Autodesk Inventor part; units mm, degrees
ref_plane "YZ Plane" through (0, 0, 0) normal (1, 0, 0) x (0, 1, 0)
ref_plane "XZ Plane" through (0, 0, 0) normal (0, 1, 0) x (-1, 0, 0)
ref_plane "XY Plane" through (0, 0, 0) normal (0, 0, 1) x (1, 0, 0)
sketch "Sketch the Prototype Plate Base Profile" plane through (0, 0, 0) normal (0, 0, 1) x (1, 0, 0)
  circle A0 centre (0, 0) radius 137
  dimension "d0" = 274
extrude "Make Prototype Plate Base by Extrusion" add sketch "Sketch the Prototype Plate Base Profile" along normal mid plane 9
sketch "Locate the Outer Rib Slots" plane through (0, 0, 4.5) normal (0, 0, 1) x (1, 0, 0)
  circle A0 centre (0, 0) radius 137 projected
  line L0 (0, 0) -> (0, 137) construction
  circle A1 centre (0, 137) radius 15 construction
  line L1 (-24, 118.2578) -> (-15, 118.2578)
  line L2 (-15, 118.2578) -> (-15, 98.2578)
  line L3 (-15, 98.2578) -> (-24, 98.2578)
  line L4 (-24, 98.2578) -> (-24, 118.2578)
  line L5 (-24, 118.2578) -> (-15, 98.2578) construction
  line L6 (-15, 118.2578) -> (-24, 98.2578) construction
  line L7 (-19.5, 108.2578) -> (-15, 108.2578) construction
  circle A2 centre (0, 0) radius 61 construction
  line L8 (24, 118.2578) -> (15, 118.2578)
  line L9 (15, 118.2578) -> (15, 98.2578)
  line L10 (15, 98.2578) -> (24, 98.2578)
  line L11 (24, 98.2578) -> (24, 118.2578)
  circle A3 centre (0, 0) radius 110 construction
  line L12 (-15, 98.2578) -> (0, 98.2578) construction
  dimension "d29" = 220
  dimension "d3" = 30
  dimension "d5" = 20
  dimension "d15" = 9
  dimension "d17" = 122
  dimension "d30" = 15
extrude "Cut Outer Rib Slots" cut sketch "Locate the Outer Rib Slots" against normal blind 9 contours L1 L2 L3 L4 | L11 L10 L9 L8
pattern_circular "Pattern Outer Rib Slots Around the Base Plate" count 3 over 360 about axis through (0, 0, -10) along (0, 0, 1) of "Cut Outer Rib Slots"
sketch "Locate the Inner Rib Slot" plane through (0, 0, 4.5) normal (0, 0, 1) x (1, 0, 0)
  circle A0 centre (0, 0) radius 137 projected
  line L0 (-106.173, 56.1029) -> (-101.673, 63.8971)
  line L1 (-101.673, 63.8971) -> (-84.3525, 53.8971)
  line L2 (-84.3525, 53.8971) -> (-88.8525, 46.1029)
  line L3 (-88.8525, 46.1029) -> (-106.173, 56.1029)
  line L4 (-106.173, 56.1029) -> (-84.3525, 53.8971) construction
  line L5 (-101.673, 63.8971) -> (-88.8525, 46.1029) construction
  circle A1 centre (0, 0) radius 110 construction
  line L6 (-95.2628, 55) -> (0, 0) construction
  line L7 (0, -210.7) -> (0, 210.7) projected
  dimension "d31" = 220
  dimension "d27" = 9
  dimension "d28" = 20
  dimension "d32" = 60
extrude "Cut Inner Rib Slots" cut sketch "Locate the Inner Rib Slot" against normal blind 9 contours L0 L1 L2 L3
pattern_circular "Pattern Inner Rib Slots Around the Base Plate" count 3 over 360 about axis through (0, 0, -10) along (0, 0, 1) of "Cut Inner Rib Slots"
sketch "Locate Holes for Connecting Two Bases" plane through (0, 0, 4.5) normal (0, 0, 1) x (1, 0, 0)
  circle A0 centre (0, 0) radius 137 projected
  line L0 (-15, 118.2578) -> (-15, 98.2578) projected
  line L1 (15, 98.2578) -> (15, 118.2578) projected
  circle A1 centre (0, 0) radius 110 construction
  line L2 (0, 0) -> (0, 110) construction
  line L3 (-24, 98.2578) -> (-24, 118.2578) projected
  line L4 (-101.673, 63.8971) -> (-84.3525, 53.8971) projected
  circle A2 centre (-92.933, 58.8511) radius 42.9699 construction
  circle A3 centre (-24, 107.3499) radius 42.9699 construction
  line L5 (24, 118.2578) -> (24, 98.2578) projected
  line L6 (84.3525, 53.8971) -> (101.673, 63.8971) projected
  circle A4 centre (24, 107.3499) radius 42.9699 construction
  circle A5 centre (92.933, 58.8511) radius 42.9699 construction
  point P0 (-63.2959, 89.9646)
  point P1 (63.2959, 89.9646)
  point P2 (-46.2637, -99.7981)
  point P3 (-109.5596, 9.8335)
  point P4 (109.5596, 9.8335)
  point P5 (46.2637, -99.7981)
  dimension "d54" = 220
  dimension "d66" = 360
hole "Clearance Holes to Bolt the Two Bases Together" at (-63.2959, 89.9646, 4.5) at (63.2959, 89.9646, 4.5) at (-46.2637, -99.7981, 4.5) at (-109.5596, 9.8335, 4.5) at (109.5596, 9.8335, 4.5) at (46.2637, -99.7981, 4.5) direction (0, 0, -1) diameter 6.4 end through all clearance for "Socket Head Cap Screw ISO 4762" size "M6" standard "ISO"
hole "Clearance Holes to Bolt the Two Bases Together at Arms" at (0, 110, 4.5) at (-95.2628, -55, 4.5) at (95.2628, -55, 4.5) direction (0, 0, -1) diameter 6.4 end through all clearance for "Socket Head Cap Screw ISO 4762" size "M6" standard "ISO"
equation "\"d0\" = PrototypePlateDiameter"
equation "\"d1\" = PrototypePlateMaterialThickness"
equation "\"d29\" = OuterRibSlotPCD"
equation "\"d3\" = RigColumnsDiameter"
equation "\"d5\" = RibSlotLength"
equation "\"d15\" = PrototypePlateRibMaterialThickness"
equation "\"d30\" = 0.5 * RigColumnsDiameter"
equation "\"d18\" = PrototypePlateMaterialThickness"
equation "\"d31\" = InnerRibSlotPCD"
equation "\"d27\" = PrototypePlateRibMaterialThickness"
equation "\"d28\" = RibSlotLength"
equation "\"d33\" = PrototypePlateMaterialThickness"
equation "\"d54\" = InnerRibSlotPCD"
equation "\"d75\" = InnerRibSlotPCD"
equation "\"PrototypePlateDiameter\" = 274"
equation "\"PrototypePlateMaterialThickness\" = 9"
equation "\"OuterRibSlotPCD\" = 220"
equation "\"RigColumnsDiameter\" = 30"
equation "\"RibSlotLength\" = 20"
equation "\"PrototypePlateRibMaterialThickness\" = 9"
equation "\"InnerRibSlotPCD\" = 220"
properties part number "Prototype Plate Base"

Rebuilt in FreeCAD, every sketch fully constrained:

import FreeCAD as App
import Part
import Sketcher
from FreeCAD import Vector
Q = App.Units.Quantity


def add_polygon(sketch, points):
    """Adds a closed chain of lines whose ends are joined by coincident constraints."""
    first, n = sketch.GeometryCount, len(points)
    for a, b in zip(points, points[1:] + points[:1]):
        sketch.addGeometry(Part.LineSegment(App.Vector(*a, 0), App.Vector(*b, 0)), False)
    for i in range(n):
        sketch.addConstraint(Sketcher.Constraint("Coincident", first + i, 2, first + (i + 1) % n, 1))

doc = App.newDocument("Part")
body = doc.addObject("PartDesign::Body", "Body")

sketch1 = body.newObject("Sketcher::SketchObject", "Sketch")
sketch1.AttachmentSupport = (doc.getObject("XY_Plane"), [""])
sketch1.MapMode = "FlatFace"
sketch1.addGeometry(Part.Circle(Vector(0, 0, 0), Vector(0, 0, 1), 137), False)
sketch1.addConstraint(Sketcher.Constraint("Coincident", 0, 3, -1, 1))
sketch1.addConstraint(Sketcher.Constraint("Diameter", 0, 274.0))
pad1 = body.newObject("PartDesign::Pad", "Pad")
pad1.Profile = sketch1
pad1.Length = 9
pad1.Midplane = True

sketch2 = body.newObject("Sketcher::SketchObject", "Sketch001")
sketch2.AttachmentSupport = (doc.getObject("XY_Plane"), [""])
sketch2.MapMode = "FlatFace"
sketch2.AttachmentOffset = App.Placement(Vector(0, 0, 4.5), App.Rotation())
add_polygon(sketch2, [(-15, 118), (-24, 118), (-24, 98), (-15, 98)])
add_polygon(sketch2, [(24, 98), (24, 118), (15, 118), (15, 98)])
sketch2.addConstraint(Sketcher.Constraint("Horizontal", 0))
sketch2.addConstraint(Sketcher.Constraint("Vertical", 1))
sketch2.addConstraint(Sketcher.Constraint("Horizontal", 2))
sketch2.addConstraint(Sketcher.Constraint("Vertical", 3))
sketch2.addConstraint(Sketcher.Constraint("Vertical", 4))
sketch2.addConstraint(Sketcher.Constraint("Horizontal", 5))
sketch2.addConstraint(Sketcher.Constraint("Vertical", 6))
sketch2.addConstraint(Sketcher.Constraint("Horizontal", 7))
sketch2.addConstraint(Sketcher.Constraint("Symmetric", 0, 2, 4, 2, -2))
sketch2.addConstraint(Sketcher.Constraint("Symmetric", 2, 2, 6, 2, -2))
sketch2.addConstraint(Sketcher.Constraint("DistanceX", 0, 2, 0, 1, 9.0))
sketch2.addConstraint(Sketcher.Constraint("DistanceY", 1, 2, 1, 1, 20.0))
sketch2.addConstraint(Sketcher.Constraint("DistanceX", 2, 2, -1, 1, 15.0))
sketch2.addConstraint(Sketcher.Constraint("DistanceY", -1, 1, 0, 2, 118.2578))
pocket1 = body.newObject("PartDesign::Pocket", "Pocket")
pocket1.Profile = sketch2
pocket1.Length = 9
doc.recompute()

polarpattern = body.newObject("PartDesign::PolarPattern", "PolarPattern")
polarpattern.Originals = [pocket1]
polarpattern.Axis = (doc.getObject("Z_Axis"), [""])
polarpattern.Angle = 360
polarpattern.Occurrences = 3
body.Tip = polarpattern

sketch3 = body.newObject("Sketcher::SketchObject", "Sketch002")
sketch3.AttachmentSupport = (doc.getObject("XY_Plane"), [""])
sketch3.MapMode = "FlatFace"
sketch3.AttachmentOffset = App.Placement(Vector(0, 0, 4.5), App.Rotation())
add_polygon(sketch3, [(-102, 64), (-106, 56), (-89, 46), (-84, 54)])
sketch3.addConstraint(Sketcher.Constraint("Perpendicular", 0, 1))
sketch3.addConstraint(Sketcher.Constraint("Perpendicular", 1, 2))
sketch3.addConstraint(Sketcher.Constraint("Perpendicular", 2, 3))
sketch3.addConstraint(Sketcher.Constraint("Angle", 2, Q("60 deg")))
sketch3.addConstraint(Sketcher.Constraint("Distance", 0, 9.0))
sketch3.addConstraint(Sketcher.Constraint("Distance", 1, 20.0))
sketch3.addConstraint(Sketcher.Constraint("DistanceX", 0, 2, -1, 1, 106.173))
sketch3.addConstraint(Sketcher.Constraint("DistanceY", -1, 1, 0, 2, 56.103))
pocket2 = body.newObject("PartDesign::Pocket", "Pocket001")
pocket2.Profile = sketch3
pocket2.Length = 9
doc.recompute()

polarpattern2 = body.newObject("PartDesign::PolarPattern", "PolarPattern001")
polarpattern2.Originals = [pocket2]
polarpattern2.Axis = (doc.getObject("Z_Axis"), [""])
polarpattern2.Angle = 360
polarpattern2.Occurrences = 3
body.Tip = polarpattern2

sketch4 = body.newObject("Sketcher::SketchObject", "Sketch003")
sketch4.AttachmentSupport = (doc.getObject("XY_Plane"), [""])
sketch4.MapMode = "FlatFace"
sketch4.AttachmentOffset = App.Placement(Vector(0, 0, 4.5), App.Rotation())
sketch4.addGeometry(Part.Circle(Vector(-63.3, 90, 0), Vector(0, 0, 1), 3.2), False)
sketch4.addGeometry(Part.Circle(Vector(63.3, 90, 0), Vector(0, 0, 1), 3.2), False)
sketch4.addGeometry(Part.Circle(Vector(-46.3, -99.8, 0), Vector(0, 0, 1), 3.2), False)
sketch4.addGeometry(Part.Circle(Vector(-109.6, 9.8, 0), Vector(0, 0, 1), 3.2), False)
sketch4.addGeometry(Part.Circle(Vector(109.6, 9.8, 0), Vector(0, 0, 1), 3.2), False)
sketch4.addGeometry(Part.Circle(Vector(46.3, -99.8, 0), Vector(0, 0, 1), 3.2), False)
sketch4.addConstraint(Sketcher.Constraint("Equal", 0, 1))
sketch4.addConstraint(Sketcher.Constraint("Equal", 1, 2))
sketch4.addConstraint(Sketcher.Constraint("Equal", 2, 3))
sketch4.addConstraint(Sketcher.Constraint("Equal", 3, 4))
sketch4.addConstraint(Sketcher.Constraint("Equal", 4, 5))
sketch4.addConstraint(Sketcher.Constraint("Symmetric", 0, 3, 1, 3, -2))
sketch4.addConstraint(Sketcher.Constraint("Symmetric", 3, 3, 4, 3, -2))
sketch4.addConstraint(Sketcher.Constraint("Symmetric", 2, 3, 5, 3, -2))
sketch4.addConstraint(Sketcher.Constraint("Diameter", 0, 6.4))
sketch4.addConstraint(Sketcher.Constraint("DistanceX", 0, 3, -1, 1, 63.296))
sketch4.addConstraint(Sketcher.Constraint("DistanceY", 2, 3, -1, 1, 99.798))
sketch4.addConstraint(Sketcher.Constraint("DistanceY", 3, 3, 0, 3, 80.131))
sketch4.addConstraint(Sketcher.Constraint("DistanceX", 3, 3, 2, 3, 63.296))
sketch4.addConstraint(Sketcher.Constraint("DistanceY", -1, 1, 0, 3, 89.9646))
sketch4.addConstraint(Sketcher.Constraint("DistanceX", 2, 3, -1, 1, 46.2637))
doc.recompute()
hole = body.newObject("PartDesign::Hole", "Hole")
hole.Profile = sketch4
hole.ThreadType = "None"
hole.Diameter = 6.4
hole.DepthType = "ThroughAll"

sketch5 = body.newObject("Sketcher::SketchObject", "Sketch004")
sketch5.AttachmentSupport = (doc.getObject("XY_Plane"), [""])
sketch5.MapMode = "FlatFace"
sketch5.AttachmentOffset = App.Placement(Vector(0, 0, 4.5), App.Rotation())
sketch5.addGeometry(Part.Circle(Vector(0, 110, 0), Vector(0, 0, 1), 3.2), False)
sketch5.addGeometry(Part.Circle(Vector(-95.3, -55, 0), Vector(0, 0, 1), 3.2), False)
sketch5.addGeometry(Part.Circle(Vector(95.3, -55, 0), Vector(0, 0, 1), 3.2), False)
sketch5.addConstraint(Sketcher.Constraint("Equal", 0, 1))
sketch5.addConstraint(Sketcher.Constraint("Equal", 1, 2))
sketch5.addConstraint(Sketcher.Constraint("Symmetric", 1, 3, 2, 3, -2))
sketch5.addConstraint(Sketcher.Constraint("PointOnObject", 0, 3, -2))
sketch5.addConstraint(Sketcher.Constraint("Diameter", 0, 6.4))
sketch5.addConstraint(Sketcher.Constraint("DistanceY", -1, 1, 0, 3, 110.0))
sketch5.addConstraint(Sketcher.Constraint("DistanceY", 1, 3, -1, 1, 55.0))
sketch5.addConstraint(Sketcher.Constraint("DistanceX", 1, 3, -1, 1, 95.2628))
doc.recompute()
hole2 = body.newObject("PartDesign::Hole", "Hole001")
hole2.Profile = sketch5
hole2.ThreadType = "None"
hole2.Diameter = 6.4
hole2.DepthType = "ThroughAll"

doc.recompute()
